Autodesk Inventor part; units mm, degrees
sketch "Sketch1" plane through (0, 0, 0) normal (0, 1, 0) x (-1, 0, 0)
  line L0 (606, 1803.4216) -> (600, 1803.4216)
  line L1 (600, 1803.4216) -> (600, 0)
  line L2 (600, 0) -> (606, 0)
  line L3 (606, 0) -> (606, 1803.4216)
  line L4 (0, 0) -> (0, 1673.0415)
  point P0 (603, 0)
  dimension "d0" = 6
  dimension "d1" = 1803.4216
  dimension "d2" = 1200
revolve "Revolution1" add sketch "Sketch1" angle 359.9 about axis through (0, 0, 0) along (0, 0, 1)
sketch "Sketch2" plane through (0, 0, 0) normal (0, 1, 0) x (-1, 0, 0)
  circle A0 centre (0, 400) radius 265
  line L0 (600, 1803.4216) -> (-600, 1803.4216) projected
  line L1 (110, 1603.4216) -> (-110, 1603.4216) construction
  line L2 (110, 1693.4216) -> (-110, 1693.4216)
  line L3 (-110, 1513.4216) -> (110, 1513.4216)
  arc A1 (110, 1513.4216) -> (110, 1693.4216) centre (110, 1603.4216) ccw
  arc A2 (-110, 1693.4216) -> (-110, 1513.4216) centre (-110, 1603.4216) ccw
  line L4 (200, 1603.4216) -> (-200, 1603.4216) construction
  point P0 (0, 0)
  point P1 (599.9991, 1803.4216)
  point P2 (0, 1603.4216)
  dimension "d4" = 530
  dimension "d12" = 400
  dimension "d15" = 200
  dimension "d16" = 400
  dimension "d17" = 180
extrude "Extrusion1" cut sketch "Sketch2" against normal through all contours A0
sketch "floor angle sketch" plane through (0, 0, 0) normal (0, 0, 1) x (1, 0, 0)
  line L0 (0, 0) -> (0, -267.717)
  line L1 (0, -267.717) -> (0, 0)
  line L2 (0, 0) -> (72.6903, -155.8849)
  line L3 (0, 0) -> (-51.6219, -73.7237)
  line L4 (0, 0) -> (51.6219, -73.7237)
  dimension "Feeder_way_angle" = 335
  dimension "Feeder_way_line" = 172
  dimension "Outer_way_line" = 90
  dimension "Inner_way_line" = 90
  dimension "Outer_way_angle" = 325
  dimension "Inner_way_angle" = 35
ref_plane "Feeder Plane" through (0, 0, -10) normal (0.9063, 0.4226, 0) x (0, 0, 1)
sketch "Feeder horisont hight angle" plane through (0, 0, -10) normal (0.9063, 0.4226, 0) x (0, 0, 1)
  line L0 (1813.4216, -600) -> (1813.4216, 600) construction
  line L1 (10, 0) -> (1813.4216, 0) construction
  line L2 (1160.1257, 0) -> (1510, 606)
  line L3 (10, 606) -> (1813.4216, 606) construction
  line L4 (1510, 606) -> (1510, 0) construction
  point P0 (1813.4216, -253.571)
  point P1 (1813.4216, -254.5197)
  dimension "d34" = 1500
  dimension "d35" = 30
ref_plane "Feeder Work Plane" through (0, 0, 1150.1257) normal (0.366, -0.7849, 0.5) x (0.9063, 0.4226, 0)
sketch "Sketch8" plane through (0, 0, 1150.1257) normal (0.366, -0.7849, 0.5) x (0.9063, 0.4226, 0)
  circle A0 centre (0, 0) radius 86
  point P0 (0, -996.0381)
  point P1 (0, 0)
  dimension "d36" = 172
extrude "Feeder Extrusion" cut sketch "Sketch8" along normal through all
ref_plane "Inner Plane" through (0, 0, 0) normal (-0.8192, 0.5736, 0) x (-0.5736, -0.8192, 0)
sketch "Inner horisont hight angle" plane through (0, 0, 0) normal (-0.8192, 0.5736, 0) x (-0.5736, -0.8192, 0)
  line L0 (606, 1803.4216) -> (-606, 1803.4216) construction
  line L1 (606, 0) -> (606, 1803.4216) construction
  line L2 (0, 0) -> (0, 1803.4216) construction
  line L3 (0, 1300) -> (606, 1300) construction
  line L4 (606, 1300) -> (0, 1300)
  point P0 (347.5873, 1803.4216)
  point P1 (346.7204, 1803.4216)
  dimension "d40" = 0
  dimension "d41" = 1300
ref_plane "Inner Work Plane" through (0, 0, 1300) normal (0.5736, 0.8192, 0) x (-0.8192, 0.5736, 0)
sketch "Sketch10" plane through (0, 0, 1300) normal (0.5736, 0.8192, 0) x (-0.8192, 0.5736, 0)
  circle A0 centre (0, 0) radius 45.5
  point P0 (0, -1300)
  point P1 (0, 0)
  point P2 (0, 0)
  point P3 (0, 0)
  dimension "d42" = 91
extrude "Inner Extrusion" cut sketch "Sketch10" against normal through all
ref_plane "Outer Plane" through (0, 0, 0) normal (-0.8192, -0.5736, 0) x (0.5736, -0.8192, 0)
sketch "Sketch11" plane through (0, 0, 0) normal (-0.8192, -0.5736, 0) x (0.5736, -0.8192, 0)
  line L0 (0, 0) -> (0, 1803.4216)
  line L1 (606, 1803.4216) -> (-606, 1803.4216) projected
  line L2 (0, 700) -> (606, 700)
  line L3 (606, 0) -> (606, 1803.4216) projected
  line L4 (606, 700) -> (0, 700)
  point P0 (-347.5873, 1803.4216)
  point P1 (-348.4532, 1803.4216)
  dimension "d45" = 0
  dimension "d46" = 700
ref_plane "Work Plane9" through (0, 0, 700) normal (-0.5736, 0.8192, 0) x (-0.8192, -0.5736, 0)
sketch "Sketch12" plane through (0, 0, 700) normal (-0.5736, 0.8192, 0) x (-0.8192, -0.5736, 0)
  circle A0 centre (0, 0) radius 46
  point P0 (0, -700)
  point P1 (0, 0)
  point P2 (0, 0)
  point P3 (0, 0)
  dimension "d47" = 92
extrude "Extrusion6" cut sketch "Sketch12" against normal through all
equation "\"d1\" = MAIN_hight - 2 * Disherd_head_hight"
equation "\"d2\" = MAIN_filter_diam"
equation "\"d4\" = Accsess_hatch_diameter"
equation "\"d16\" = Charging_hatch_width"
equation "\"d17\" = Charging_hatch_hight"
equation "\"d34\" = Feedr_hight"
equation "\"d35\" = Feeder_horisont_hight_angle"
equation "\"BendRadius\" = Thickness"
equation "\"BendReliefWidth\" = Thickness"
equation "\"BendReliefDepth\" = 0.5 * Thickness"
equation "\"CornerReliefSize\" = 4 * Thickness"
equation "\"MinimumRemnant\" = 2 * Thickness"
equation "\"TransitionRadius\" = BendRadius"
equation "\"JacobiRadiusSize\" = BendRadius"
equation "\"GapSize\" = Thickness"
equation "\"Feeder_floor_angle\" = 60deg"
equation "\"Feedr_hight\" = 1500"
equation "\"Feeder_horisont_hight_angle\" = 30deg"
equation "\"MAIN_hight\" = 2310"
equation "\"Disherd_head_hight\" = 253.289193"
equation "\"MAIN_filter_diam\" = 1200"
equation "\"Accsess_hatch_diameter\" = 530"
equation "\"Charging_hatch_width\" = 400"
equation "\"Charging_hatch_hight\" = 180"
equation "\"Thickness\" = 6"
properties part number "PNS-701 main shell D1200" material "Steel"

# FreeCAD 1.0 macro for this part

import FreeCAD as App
import Part
import Sketcher

V = App.Vector


def add_polygon(sketch, points):
    """Adds a closed chain of lines whose ends are joined by coincident constraints."""
    first, n = sketch.GeometryCount, len(points)
    for a, b in zip(points, points[1:] + points[:1]):
        sketch.addGeometry(Part.LineSegment(App.Vector(*a, 0), App.Vector(*b, 0)), False)
    for i in range(n):
        sketch.addConstraint(Sketcher.Constraint("Coincident", first + i, 2, first + (i + 1) % n, 1))

doc = App.newDocument("Part")
params = doc.addObject("Spreadsheet::Sheet", "Params")
for row, (alias, value) in enumerate([
    ("sketch1_width", "6 mm"),
    ("revolution_angle", "359.9 deg"),
    ("sketch2_diameter", "530 mm"),
    ("sketch3_diameter", "172 mm"),
    ("sketch4_diameter", "91 mm"),
    ("sketch5_diameter", "92 mm"),
], start=1):
    params.set(f"A{row}", alias)
    params.set(f"B{row}", "=" + value)
    params.setAlias(f"B{row}", alias)

body = doc.addObject("PartDesign::Body", "Body")

sketch1 = body.newObject("Sketcher::SketchObject", "Sketch")
sketch1.AttachmentSupport = (doc.getObject("XZ_Plane"), [""])
sketch1.MapMode = "FlatFace"
add_polygon(sketch1, [(-606, 0), (-606, 1803.4216), (-600, 1803.4216), (-600, 0)])
sketch1.addConstraint([
    Sketcher.Constraint("Vertical", 0),
    Sketcher.Constraint("Horizontal", 1),
    Sketcher.Constraint("Vertical", 2),
    Sketcher.Constraint("Horizontal", 3),
    Sketcher.Constraint("PointOnObject", 2, 2, -1),
    Sketcher.Constraint("DistanceX", 1, 1, 1, 2, 6.0),
    Sketcher.Constraint("DistanceY", 0, 1, 0, 2, 1803.4216),
    Sketcher.Constraint("DistanceX", 0, 2, -1, 1, 606.0),
])
sketch1.setExpression("Constraints[9]", "Params.sketch1_width")
revolution = body.newObject("PartDesign::Revolution", "Revolution")
revolution.Profile = sketch1
revolution.ReferenceAxis = (sketch1, ["V_Axis"])
revolution.setExpression("Angle", "Params.revolution_angle")

sketch2 = body.newObject("Sketcher::SketchObject", "Sketch001")
sketch2.AttachmentSupport = (doc.getObject("XZ_Plane"), [""])
sketch2.MapMode = "FlatFace"
sketch2.addGeometry(Part.Circle(V(0, 400, 0), V(0, 0, 1), 265), False)
sketch2.addConstraint([
    Sketcher.Constraint("PointOnObject", 0, 3, -2),
    Sketcher.Constraint("Diameter", 0, 530.0),
    Sketcher.Constraint("DistanceY", -1, 1, 0, 3, 400.0),
])
sketch2.setExpression("Constraints[1]", "Params.sketch2_diameter")
pocket1 = body.newObject("PartDesign::Pocket", "Pocket")
pocket1.Profile = sketch2
pocket1.Type = "ThroughAll"
pocket1.Reversed = True

sketch3 = body.newObject("Sketcher::SketchObject", "Sketch002")
sketch3.Placement = App.Placement(V(0, 0, 1150.1257), App.Rotation(V(0.906309406, 0.42261479, 0.000002212), V(-0.211306595, 0.453148454, 0.866028869), V(0.365995606, -0.784890577, 0.499993998), "ZXY"))
sketch3.addGeometry(Part.Circle(V(0, 0, 0), V(0, 0, 1), 86), False)
sketch3.addConstraint([
    Sketcher.Constraint("Coincident", 0, 3, -1, 1),
    Sketcher.Constraint("Diameter", 0, 172.0),
])
sketch3.setExpression("Constraints[1]", "Params.sketch3_diameter")
pocket2 = body.newObject("PartDesign::Pocket", "Pocket001")
pocket2.Profile = sketch3
pocket2.Type = "ThroughAll"
pocket2.Reversed = True

sketch4 = body.newObject("Sketcher::SketchObject", "Sketch003")
sketch4.Placement = App.Placement(V(0, 0, 1300), App.Rotation(V(-0.819152044, 0.573576436, 0), V(0, 0, 0.999999999), V(0.573576436, 0.819152044, 0), "ZXY"))
sketch4.addGeometry(Part.Circle(V(0, 0, 0), V(0, 0, 1), 45.5), False)
sketch4.addConstraint([
    Sketcher.Constraint("Coincident", 0, 3, -1, 1),
    Sketcher.Constraint("Diameter", 0, 91.0),
])
sketch4.setExpression("Constraints[1]", "Params.sketch4_diameter")
pocket3 = body.newObject("PartDesign::Pocket", "Pocket002")
pocket3.Profile = sketch4
pocket3.Type = "ThroughAll"

sketch5 = body.newObject("Sketcher::SketchObject", "Sketch004")
sketch5.Placement = App.Placement(V(0, 0, 700), App.Rotation(V(-0.819152044, -0.573576436, 0), V(0, 0, 0.999999999), V(-0.573576436, 0.819152044, 0), "ZXY"))
sketch5.addGeometry(Part.Circle(V(0, 0, 0), V(0, 0, 1), 46), False)
sketch5.addConstraint([
    Sketcher.Constraint("Coincident", 0, 3, -1, 1),
    Sketcher.Constraint("Diameter", 0, 92.0),
])
sketch5.setExpression("Constraints[1]", "Params.sketch5_diameter")
pocket4 = body.newObject("PartDesign::Pocket", "Pocket003")
pocket4.Profile = sketch5
pocket4.Type = "ThroughAll"

doc.recompute()
